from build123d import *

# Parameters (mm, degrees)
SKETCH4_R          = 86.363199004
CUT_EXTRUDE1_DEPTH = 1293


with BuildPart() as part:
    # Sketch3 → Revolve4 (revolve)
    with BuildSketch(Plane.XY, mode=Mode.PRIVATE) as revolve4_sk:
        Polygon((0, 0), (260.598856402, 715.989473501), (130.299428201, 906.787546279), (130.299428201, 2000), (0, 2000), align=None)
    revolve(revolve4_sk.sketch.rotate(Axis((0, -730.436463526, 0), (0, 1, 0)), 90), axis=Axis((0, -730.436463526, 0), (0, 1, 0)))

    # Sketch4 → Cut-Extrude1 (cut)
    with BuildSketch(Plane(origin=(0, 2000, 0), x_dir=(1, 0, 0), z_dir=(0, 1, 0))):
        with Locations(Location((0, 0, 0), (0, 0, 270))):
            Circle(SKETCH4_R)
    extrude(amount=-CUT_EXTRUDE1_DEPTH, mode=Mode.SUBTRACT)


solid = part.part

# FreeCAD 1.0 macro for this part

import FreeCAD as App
import Part
import Sketcher
Q = App.Units.Quantity


def add_polygon(sketch, points):
    """Adds a closed chain of lines whose ends are joined by coincident constraints."""
    first, n = sketch.GeometryCount, len(points)
    for a, b in zip(points, points[1:] + points[:1]):
        sketch.addGeometry(Part.LineSegment(App.Vector(*a, 0), App.Vector(*b, 0)), False)
    for i in range(n):
        sketch.addConstraint(Sketcher.Constraint("Coincident", first + i, 2, first + (i + 1) % n, 1))

doc = App.newDocument("Part")
body = doc.addObject("PartDesign::Body", "Body")

sketch1 = doc.addObject("Sketcher::SketchObject", "Sketch")
body.addObject(sketch1)
sketch1.AttachmentSupport = (doc.XY_Plane, [""])
sketch1.MapMode = "FlatFace"
add_polygon(sketch1, [(0, 0), (261, 716), (130, 907), (130, 2000), (0, 2000)])
sketch1.addConstraint([
    Sketcher.Constraint("Vertical", 2),
    Sketcher.Constraint("Horizontal", 3),
    Sketcher.Constraint("Vertical", 4),
    Sketcher.Constraint("Coincident", 4, 2, -1, 1),
    Sketcher.Constraint("DistanceY", 4, 2, 4, 1, 2000.0),
    Sketcher.Constraint("Angle", 0, Q("70 deg")),
    Sketcher.Constraint("DistanceX", 3, 2, 3, 1, 130.299428),
    Sketcher.Constraint("DistanceY", 2, 1, 2, 2, 1093.212454),
    Sketcher.Constraint("DistanceX", 1, 2, 0, 2, 130.299428),
])
revolution = doc.addObject("PartDesign::Revolution", "Revolution")
body.addObject(revolution)
revolution.Profile = sketch1
revolution.ReferenceAxis = (sketch1, ["V_Axis"])
revolution.Angle = 360

sketch2 = doc.addObject("Sketcher::SketchObject", "Sketch001")
body.addObject(sketch2)
sketch2.AttachmentSupport = (doc.XZ_Plane, [""])
sketch2.MapMode = "FlatFace"
sketch2.AttachmentOffset = App.Placement(App.Vector(0, 0, -2000), App.Rotation())
sketch2.addGeometry(Part.Circle(App.Vector(0, 0, 0), App.Vector(0, 0, 1), 86), False)
sketch2.addConstraint([
    Sketcher.Constraint("Coincident", 0, 3, -1, 1),
    Sketcher.Constraint("Diameter", 0, 172.726398),
])
pocket1 = doc.addObject("PartDesign::Pocket", "Pocket")
body.addObject(pocket1)
pocket1.Profile = sketch2
pocket1.Length = 1293
pocket1.Reversed = True

doc.recompute()
